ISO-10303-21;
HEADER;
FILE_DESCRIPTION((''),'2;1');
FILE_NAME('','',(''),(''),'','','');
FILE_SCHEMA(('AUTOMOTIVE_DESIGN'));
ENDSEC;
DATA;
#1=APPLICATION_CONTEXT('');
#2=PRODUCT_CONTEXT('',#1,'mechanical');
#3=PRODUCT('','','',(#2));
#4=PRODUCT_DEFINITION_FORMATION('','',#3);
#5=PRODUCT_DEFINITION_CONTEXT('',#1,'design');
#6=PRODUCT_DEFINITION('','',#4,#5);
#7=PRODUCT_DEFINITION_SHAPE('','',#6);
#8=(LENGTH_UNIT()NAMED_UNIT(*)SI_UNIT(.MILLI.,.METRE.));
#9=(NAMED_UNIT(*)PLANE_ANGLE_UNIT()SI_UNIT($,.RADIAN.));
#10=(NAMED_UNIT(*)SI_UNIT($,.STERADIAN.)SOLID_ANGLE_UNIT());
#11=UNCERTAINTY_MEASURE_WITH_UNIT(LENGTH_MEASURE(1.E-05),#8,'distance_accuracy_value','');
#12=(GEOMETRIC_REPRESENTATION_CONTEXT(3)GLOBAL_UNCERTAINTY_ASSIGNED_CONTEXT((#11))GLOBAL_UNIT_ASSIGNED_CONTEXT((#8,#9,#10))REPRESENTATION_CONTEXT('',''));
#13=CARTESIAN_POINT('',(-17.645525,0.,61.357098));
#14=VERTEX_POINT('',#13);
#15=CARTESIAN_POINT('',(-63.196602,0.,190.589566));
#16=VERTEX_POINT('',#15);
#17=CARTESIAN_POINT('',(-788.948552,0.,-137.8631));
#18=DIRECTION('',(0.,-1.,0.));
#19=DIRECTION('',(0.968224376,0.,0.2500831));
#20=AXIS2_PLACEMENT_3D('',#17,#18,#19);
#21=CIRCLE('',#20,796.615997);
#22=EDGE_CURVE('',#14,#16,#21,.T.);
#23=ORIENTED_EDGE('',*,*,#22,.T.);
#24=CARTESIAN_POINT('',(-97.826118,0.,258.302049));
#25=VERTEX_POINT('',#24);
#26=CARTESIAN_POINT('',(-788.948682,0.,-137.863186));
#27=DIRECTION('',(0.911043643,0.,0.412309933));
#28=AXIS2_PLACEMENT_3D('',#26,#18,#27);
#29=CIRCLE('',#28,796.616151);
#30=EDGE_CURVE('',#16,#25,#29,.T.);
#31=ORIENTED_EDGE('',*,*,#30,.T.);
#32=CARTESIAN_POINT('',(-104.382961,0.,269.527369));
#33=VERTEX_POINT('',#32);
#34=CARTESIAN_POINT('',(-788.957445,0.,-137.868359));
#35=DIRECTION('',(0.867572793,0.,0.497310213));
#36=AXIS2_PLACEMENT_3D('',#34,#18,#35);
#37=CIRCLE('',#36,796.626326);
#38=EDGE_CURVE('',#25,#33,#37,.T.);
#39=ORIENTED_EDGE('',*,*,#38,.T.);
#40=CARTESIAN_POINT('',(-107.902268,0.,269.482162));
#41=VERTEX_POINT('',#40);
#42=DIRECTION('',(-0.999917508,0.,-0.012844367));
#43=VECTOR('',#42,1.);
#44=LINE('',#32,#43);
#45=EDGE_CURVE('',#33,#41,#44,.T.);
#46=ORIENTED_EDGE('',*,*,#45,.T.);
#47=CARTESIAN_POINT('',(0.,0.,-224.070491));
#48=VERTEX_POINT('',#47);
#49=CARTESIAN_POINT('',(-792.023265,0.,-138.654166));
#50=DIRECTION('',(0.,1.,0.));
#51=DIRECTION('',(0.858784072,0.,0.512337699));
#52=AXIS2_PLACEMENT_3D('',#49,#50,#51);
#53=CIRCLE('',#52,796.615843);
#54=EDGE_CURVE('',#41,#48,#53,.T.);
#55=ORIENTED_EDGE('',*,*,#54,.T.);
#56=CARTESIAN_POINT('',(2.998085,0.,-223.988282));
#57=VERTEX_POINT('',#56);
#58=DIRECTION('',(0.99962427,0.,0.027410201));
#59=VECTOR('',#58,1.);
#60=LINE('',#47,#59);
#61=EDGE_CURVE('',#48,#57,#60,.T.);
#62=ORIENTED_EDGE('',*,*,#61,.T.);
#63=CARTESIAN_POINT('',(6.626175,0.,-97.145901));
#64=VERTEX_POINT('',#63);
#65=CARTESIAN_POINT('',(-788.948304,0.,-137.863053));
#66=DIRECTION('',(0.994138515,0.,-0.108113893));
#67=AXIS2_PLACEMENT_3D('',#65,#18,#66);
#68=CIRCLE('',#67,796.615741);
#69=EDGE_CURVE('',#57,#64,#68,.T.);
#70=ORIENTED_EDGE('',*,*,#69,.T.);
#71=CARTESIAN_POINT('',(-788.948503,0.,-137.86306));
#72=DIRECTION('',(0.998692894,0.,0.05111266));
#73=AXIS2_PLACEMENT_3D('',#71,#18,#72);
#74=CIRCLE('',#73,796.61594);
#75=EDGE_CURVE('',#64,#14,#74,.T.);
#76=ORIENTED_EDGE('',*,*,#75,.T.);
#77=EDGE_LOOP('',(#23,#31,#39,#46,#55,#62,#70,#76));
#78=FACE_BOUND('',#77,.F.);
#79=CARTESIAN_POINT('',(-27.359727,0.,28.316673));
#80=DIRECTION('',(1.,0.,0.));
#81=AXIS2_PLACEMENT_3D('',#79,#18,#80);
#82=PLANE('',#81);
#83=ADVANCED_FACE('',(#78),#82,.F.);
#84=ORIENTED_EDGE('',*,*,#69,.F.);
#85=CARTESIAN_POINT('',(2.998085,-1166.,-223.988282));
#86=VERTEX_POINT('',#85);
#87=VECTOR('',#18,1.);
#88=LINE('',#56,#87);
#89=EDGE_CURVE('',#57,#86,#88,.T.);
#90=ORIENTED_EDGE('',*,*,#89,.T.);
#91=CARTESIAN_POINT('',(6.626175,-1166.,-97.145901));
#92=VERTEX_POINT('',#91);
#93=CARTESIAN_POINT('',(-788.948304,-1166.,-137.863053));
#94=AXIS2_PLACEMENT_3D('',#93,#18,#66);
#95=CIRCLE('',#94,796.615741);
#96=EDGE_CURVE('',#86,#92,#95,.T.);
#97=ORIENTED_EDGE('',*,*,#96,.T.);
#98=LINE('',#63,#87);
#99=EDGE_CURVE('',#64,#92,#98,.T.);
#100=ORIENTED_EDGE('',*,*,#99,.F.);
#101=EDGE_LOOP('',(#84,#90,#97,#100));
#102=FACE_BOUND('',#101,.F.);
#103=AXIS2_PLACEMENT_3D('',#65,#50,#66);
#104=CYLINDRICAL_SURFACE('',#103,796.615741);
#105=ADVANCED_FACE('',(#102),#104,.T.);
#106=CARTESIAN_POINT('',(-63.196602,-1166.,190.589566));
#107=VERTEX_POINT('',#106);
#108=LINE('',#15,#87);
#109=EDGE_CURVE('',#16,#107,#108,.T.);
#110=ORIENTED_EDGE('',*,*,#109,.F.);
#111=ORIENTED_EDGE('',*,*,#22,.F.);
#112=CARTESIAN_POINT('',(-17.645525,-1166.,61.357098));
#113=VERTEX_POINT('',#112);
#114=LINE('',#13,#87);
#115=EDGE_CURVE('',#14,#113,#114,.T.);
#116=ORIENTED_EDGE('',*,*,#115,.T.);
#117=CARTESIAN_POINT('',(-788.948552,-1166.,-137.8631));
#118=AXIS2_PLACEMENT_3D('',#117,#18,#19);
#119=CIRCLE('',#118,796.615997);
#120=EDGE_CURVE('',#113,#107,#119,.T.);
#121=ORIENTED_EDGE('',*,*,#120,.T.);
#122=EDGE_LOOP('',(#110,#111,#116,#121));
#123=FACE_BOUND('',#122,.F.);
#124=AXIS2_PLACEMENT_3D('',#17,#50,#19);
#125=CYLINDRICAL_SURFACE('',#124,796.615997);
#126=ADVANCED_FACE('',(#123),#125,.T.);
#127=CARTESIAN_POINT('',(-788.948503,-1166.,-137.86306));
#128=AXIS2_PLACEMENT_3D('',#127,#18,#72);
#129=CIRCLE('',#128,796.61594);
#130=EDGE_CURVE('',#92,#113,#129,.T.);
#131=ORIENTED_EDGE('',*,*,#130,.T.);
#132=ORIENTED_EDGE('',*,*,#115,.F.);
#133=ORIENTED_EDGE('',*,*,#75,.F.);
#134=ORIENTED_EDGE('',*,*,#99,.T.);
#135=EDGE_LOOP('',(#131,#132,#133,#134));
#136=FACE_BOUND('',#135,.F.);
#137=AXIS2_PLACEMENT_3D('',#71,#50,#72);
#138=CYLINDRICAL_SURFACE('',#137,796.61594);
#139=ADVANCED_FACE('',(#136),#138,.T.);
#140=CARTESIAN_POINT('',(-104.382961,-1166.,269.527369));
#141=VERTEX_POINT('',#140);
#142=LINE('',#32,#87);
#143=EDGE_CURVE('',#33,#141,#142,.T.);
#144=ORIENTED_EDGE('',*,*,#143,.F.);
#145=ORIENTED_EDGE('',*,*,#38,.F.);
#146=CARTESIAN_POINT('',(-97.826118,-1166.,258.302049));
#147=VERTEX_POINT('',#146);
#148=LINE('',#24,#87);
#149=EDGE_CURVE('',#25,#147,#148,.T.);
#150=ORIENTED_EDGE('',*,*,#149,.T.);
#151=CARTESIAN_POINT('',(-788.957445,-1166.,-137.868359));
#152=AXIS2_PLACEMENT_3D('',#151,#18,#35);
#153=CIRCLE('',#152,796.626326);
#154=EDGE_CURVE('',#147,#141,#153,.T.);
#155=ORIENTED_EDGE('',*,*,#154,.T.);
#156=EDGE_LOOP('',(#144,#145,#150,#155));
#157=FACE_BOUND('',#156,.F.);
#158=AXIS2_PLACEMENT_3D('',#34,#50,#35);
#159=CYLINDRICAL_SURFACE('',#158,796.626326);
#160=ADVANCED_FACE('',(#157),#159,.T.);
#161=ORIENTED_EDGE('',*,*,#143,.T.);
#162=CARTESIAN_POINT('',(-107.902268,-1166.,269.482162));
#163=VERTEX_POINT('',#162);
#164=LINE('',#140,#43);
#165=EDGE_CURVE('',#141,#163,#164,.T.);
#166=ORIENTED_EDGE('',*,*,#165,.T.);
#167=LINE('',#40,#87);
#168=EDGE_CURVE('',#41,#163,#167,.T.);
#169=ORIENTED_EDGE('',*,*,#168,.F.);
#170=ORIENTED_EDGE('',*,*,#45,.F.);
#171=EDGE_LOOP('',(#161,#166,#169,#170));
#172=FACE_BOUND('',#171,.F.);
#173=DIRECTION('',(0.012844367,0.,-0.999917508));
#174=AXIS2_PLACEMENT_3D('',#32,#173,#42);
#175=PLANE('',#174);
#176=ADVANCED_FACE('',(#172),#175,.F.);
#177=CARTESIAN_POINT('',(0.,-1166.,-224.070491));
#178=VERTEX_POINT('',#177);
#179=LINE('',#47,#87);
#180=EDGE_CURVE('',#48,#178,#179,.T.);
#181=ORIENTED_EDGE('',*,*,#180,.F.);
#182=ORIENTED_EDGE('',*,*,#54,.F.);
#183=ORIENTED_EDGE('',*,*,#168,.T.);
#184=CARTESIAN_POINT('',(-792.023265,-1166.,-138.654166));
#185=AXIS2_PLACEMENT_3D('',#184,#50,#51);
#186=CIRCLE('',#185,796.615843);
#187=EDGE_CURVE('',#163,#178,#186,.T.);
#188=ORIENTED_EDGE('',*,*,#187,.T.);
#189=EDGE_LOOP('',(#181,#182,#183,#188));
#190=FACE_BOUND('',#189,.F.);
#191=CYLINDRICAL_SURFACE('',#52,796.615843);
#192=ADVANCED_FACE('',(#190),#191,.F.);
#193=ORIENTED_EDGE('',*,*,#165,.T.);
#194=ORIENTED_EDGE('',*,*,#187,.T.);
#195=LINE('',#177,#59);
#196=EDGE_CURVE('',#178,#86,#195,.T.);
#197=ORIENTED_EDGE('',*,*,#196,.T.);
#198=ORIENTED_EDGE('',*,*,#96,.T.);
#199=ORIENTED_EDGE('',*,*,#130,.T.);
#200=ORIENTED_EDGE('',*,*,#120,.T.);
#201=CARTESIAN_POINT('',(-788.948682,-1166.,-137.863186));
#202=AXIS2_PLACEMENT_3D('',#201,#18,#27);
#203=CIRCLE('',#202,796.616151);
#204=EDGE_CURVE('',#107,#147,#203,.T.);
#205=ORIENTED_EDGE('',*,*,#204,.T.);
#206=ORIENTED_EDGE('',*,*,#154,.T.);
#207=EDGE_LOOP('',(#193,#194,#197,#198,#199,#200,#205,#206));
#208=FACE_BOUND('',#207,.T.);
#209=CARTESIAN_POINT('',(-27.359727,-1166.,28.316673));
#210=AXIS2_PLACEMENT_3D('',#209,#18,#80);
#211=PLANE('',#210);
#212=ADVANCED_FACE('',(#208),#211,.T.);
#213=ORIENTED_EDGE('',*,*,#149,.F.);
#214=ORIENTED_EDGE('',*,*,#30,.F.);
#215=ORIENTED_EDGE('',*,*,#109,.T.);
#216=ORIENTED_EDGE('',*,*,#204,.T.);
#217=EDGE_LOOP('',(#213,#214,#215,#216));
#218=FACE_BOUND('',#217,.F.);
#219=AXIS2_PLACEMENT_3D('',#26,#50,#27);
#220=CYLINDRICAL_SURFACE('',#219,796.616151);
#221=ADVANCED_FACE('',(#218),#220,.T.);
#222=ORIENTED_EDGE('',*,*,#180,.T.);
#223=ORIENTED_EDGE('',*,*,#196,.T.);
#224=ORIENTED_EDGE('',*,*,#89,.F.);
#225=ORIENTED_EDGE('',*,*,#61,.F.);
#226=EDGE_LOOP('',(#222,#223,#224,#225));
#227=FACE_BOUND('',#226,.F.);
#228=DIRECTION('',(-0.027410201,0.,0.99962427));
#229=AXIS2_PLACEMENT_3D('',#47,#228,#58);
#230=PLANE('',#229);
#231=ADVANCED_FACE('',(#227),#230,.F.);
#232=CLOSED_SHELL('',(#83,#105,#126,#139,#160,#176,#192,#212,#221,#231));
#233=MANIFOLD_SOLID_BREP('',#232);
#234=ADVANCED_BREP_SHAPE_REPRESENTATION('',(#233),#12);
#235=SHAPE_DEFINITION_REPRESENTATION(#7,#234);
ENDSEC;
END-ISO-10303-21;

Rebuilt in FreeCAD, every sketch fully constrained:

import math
import FreeCAD as App
import Part
import Sketcher

V = App.Vector
Q = App.Units.Quantity

doc = App.newDocument("Part")
body = doc.addObject("PartDesign::Body", "Body")

sketch1 = body.newObject("Sketcher::SketchObject", "Sketch")
sketch1.AttachmentSupport = (doc.getObject("XZ_Plane"), [""])
sketch1.MapMode = "FlatFace"
sketch1.addGeometry([
    Part.LineSegment(V(0, -224.070491, 0), V(2.998085, -223.988282, 0)),
    Part.ArcOfCircle(Part.Circle(V(-788.948304, -137.863053, 0), V(0, 0, 1), 796.615741), math.radians(-6.206601), math.radians(2.929817)),
    Part.ArcOfCircle(Part.Circle(V(-788.948503, -137.86306, 0), V(0, 0, 1), 796.61594), math.radians(2.929816), math.radians(14.482428)),
    Part.ArcOfCircle(Part.Circle(V(-788.948552, -137.8631, 0), V(0, 0, 1), 796.615997), math.radians(14.48243), math.radians(24.350022)),
    Part.ArcOfCircle(Part.Circle(V(-788.948682, -137.863186, 0), V(0, 0, 1), 796.616151), math.radians(24.350024), math.radians(29.822195)),
    Part.ArcOfCircle(Part.Circle(V(-788.957445, -137.868359, 0), V(0, 0, 1), 796.626326), math.radians(29.822204), math.radians(30.757214)),
    Part.LineSegment(V(-104.382961, 269.527369, 0), V(-107.902268, 269.482162, 0)),
    Part.ArcOfCircle(Part.Circle(V(-792.023265, -138.654166, 0), V(0, 0, 1), 796.615843), math.radians(-6.155315), math.radians(30.819669)),
], False)
sketch1.addConstraint([
    Sketcher.Constraint("Coincident", 0, 2, 1, 1),
    Sketcher.Constraint("Coincident", 1, 2, 2, 1),
    Sketcher.Constraint("Coincident", 2, 2, 3, 1),
    Sketcher.Constraint("Coincident", 3, 2, 4, 1),
    Sketcher.Constraint("Coincident", 4, 2, 5, 1),
    Sketcher.Constraint("Coincident", 5, 2, 6, 1),
    Sketcher.Constraint("Coincident", 6, 2, 7, 2),
    Sketcher.Constraint("Coincident", 7, 1, 0, 1),
    Sketcher.Constraint("PointOnObject", 7, 1, -2),
    Sketcher.Constraint("Radius", 1, Q("796.615741 mm")),
    Sketcher.Constraint("Radius", 2, Q("796.61594 mm")),
    Sketcher.Constraint("Radius", 4, Q("796.616151 mm")),
    Sketcher.Constraint("Radius", 3, Q("796.615997 mm")),
    Sketcher.Constraint("Radius", 5, Q("796.626326 mm")),
    Sketcher.Constraint("Radius", 7, Q("796.615843 mm")),
    Sketcher.Constraint("DistanceY", 1, 2, 2, 2, Q("158.502999 mm")),
    Sketcher.Constraint("DistanceY", 3, 3, -1, 1, Q("137.8631 mm")),
    Sketcher.Constraint("DistanceY", 1, 2, -1, 1, Q("97.145901 mm")),
    Sketcher.Constraint("DistanceX", 2, 3, 1, 3, Q("0.000199 mm")),
    Sketcher.Constraint("DistanceY", 5, 3, 2, 3, Q("0.005299 mm")),
    Sketcher.Constraint("DistanceX", 2, 3, 3, 2, Q("725.751901 mm")),
    Sketcher.Constraint("Distance", 0, Q("2.999212 mm")),
    Sketcher.Constraint("DistanceY", 2, 3, -1, 1, Q("137.86306 mm")),
    Sketcher.Constraint("DistanceX", 3, 3, -1, 1, Q("788.948552 mm")),
    Sketcher.Constraint("DistanceX", 4, 3, -1, 1, Q("788.948682 mm")),
    Sketcher.Constraint("DistanceY", 0, 2, -1, 1, Q("223.988282 mm")),
    Sketcher.Constraint("DistanceX", 4, 2, -1, 1, Q("97.826118 mm")),
    Sketcher.Constraint("DistanceX", 6, 2, -1, 1, Q("107.902268 mm")),
    Sketcher.Constraint("DistanceY", -1, 1, 6, 2, Q("269.482162 mm")),
    Sketcher.Constraint("Distance", 6, Q("3.519597 mm")),
])
pad1 = body.newObject("PartDesign::Pad", "Pad")
pad1.Profile = sketch1
pad1.Length = 1166

doc.recompute()
